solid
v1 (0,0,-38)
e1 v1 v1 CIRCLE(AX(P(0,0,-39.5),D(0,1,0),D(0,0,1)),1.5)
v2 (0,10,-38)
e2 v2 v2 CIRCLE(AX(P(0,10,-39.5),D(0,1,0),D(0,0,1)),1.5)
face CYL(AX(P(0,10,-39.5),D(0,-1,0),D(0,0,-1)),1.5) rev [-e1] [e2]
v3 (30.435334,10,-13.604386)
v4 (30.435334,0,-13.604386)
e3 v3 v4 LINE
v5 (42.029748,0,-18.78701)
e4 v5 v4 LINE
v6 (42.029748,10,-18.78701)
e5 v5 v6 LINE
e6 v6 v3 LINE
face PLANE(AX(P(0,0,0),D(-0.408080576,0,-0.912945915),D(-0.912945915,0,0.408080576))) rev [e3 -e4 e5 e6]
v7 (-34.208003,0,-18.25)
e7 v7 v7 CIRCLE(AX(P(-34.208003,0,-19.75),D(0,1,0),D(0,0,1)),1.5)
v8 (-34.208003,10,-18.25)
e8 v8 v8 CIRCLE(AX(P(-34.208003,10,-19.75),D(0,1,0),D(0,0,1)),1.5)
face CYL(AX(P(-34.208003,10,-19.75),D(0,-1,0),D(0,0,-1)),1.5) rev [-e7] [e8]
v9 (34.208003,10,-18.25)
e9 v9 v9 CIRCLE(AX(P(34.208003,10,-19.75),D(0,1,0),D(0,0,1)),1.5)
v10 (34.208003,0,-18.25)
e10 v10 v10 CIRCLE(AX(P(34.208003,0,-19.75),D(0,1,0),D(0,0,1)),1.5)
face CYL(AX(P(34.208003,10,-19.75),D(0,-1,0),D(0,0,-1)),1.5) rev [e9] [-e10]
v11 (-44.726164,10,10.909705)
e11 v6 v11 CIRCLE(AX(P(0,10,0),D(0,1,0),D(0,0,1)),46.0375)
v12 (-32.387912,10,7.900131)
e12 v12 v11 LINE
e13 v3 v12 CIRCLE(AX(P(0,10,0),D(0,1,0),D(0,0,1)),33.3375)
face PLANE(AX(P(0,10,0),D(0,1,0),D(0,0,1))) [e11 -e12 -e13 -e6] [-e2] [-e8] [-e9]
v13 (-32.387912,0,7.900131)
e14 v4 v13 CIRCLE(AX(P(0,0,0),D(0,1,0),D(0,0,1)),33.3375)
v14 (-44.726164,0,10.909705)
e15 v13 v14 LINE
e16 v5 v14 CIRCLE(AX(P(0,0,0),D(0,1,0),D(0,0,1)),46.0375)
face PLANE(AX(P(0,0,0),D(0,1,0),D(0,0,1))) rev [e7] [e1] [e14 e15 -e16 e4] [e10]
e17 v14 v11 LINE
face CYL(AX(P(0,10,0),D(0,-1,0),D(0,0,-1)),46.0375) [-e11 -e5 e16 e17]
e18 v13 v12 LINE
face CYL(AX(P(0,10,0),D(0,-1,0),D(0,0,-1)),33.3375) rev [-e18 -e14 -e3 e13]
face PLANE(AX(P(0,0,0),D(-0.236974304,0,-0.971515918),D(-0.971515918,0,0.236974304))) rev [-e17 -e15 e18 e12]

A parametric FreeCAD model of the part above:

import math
import FreeCAD as App
import Part
import Sketcher
from FreeCAD import Vector
Q = App.Units.Quantity

doc = App.newDocument("Part")
body = doc.addObject("PartDesign::Body", "Body")

# Sketch on XZ plane
sketch1 = doc.addObject("Sketcher::SketchObject", "Sketch")
body.addObject(sketch1)
sketch1.AttachmentSupport = (doc.XZ_Plane, [""])
sketch1.MapMode = "FlatFace"
sketch1.addGeometry(Part.Circle(Vector(0, 0, 0), Vector(0, 0, 1), 46), False)
sketch1.addGeometry(Part.Circle(Vector(-34.2, -19.8, 0), Vector(0, 0, 1), 1.5), False)
sketch1.addGeometry(Part.Circle(Vector(0, -39.5, 0), Vector(0, 0, 1), 1.5), False)
sketch1.addGeometry(Part.Circle(Vector(-34.2, 19.8, 0), Vector(0, 0, 1), 1.5), False)
sketch1.addGeometry(Part.Circle(Vector(34.2, -19.8, 0), Vector(0, 0, 1), 1.5), False)
sketch1.addGeometry(Part.Circle(Vector(0, 0, 0), Vector(0, 0, 1), 33.3), False)
sketch1.addGeometry(Part.Circle(Vector(0, 39.5, 0), Vector(0, 0, 1), 1.5), False)
sketch1.addGeometry(Part.Circle(Vector(34.2, 19.8, 0), Vector(0, 0, 1), 1.5), False)
sketch1.addConstraint(Sketcher.Constraint("Coincident", 0, 3, -1, 1))
sketch1.addConstraint(Sketcher.Constraint("Coincident", 5, 3, -1, 1))
sketch1.addConstraint(Sketcher.Constraint("Equal", 1, 2))
sketch1.addConstraint(Sketcher.Constraint("Equal", 2, 3))
sketch1.addConstraint(Sketcher.Constraint("Equal", 3, 4))
sketch1.addConstraint(Sketcher.Constraint("Equal", 4, 6))
sketch1.addConstraint(Sketcher.Constraint("Equal", 6, 7))
sketch1.addConstraint(Sketcher.Constraint("Symmetric", 3, 3, 4, 3, -1, 1))
sketch1.addConstraint(Sketcher.Constraint("Symmetric", 2, 3, 6, 3, -1, 1))
sketch1.addConstraint(Sketcher.Constraint("Symmetric", 1, 3, 7, 3, -1, 1))
sketch1.addConstraint(Sketcher.Constraint("Symmetric", 1, 3, 4, 3, -2))
sketch1.addConstraint(Sketcher.Constraint("PointOnObject", 2, 3, -2))
sketch1.addConstraint(Sketcher.Constraint("Diameter", 0, Q("3.625 in")))
sketch1.addConstraint(Sketcher.Constraint("Diameter", 5, Q("2.625 in")))
sketch1.addConstraint(Sketcher.Constraint("Diameter", 1, Q("3 mm")))
sketch1.addConstraint(Sketcher.Constraint("DistanceY", 1, 3, -1, 1, Q("19.75 mm")))
sketch1.addConstraint(Sketcher.Constraint("DistanceY", 2, 3, -1, 1, Q("39.5 mm")))
sketch1.addConstraint(Sketcher.Constraint("DistanceX", 1, 3, -1, 1, Q("34.208003 mm")))
pad1 = doc.addObject("PartDesign::Pad", "Pad")
body.addObject(pad1)
pad1.Profile = sketch1
pad1.Length = 10
pad1.Reversed = True

# Sketch on XZ plane
sketch2 = doc.addObject("Sketcher::SketchObject", "Sketch001")
body.addObject(sketch2)
sketch2.AttachmentSupport = (doc.XZ_Plane, [""])
sketch2.MapMode = "FlatFace"
sketch2.AttachmentOffset = App.Placement(Vector(0, 0, -10), App.Rotation())
sketch2.addGeometry(Part.LineSegment(Vector(0, 0, 0), Vector(-45, 11, 0)), False)
sketch2.addGeometry(Part.ArcOfCircle(Part.Circle(Vector(0, 0, 0), Vector(0, 0, 1), 46), math.radians(-24), math.radians(166)), False)
sketch2.addGeometry(Part.LineSegment(Vector(42, -19, 0), Vector(0, 0, 0)), False)
sketch2.addConstraint(Sketcher.Constraint("Coincident", 0, 2, 1, 2))
sketch2.addConstraint(Sketcher.Constraint("Coincident", 1, 1, 2, 1))
sketch2.addConstraint(Sketcher.Constraint("Coincident", 2, 2, 0, 1))
sketch2.addConstraint(Sketcher.Constraint("Coincident", 1, 3, -1, 1))
sketch2.addConstraint(Sketcher.Constraint("Coincident", 2, 2, -1, 1))
sketch2.addConstraint(Sketcher.Constraint("Radius", 1, Q("1.8125 in")))
sketch2.addConstraint(Sketcher.Constraint("DistanceY", 1, 1, -1, 1, Q("18.78701 mm")))
sketch2.addConstraint(Sketcher.Constraint("DistanceX", 0, 2, 1, 1, Q("86.755912 mm")))
pocket1 = doc.addObject("PartDesign::Pocket", "Pocket")
body.addObject(pocket1)
pocket1.Profile = sketch2
pocket1.Type = "ThroughAll"
pocket1.Reversed = True

doc.recompute()
